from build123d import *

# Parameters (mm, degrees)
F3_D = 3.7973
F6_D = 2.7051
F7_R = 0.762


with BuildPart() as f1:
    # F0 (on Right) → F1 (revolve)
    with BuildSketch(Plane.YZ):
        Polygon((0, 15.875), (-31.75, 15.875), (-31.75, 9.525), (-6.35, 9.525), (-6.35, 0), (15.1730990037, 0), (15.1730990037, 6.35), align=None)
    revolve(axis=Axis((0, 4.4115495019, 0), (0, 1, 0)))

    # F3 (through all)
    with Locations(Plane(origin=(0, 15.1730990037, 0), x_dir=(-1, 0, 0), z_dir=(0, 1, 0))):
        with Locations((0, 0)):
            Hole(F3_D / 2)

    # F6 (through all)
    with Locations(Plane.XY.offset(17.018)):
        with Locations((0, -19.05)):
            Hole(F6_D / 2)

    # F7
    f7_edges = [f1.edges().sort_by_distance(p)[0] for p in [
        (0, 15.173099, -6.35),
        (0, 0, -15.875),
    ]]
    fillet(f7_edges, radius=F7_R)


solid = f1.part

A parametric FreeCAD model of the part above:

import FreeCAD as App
import Part
import Sketcher
from FreeCAD import Vector
Q = App.Units.Quantity


def edges_at(feature, points):
    """Names of the edges that pass closest to the given points."""
    edges = feature.Shape.Edges
    near = lambda p: min(range(len(edges)), key=lambda i: edges[i].distToShape(Part.Vertex(*p))[0])
    return sorted({f"Edge{near(p) + 1}" for p in points})

doc = App.newDocument("Part")
body = doc.addObject("PartDesign::Body", "Body")

sketch1 = doc.addObject("Sketcher::SketchObject", "Sketch")
body.addObject(sketch1)
sketch1.AttachmentSupport = (doc.YZ_Plane, [""])
sketch1.MapMode = "FlatFace"
sketch1.addGeometry([
    Part.LineSegment(Vector(0, 16, 0), Vector(-32, 16, 0)),
    Part.LineSegment(Vector(-32, 16, 0), Vector(-32, 10, 0)),
    Part.LineSegment(Vector(-32, 10, 0), Vector(-6, 10, 0)),
    Part.LineSegment(Vector(-6, 10, 0), Vector(-6, 0, 0)),
    Part.LineSegment(Vector(-6, 0, 0), Vector(15, 0, 0)),
    Part.LineSegment(Vector(15, 0, 0), Vector(15, 6, 0)),
    Part.LineSegment(Vector(15, 6, 0), Vector(0, 16, 0)),
], False)
sketch1.addConstraint([
    Sketcher.Constraint("Coincident", 0, 2, 1, 1),
    Sketcher.Constraint("Coincident", 1, 2, 2, 1),
    Sketcher.Constraint("Coincident", 2, 2, 3, 1),
    Sketcher.Constraint("Coincident", 3, 2, 4, 1),
    Sketcher.Constraint("Coincident", 4, 2, 5, 1),
    Sketcher.Constraint("Coincident", 5, 2, 6, 1),
    Sketcher.Constraint("Coincident", 6, 2, 0, 1),
    Sketcher.Constraint("Horizontal", 0),
    Sketcher.Constraint("Vertical", 1),
    Sketcher.Constraint("Horizontal", 2),
    Sketcher.Constraint("Vertical", 3),
    Sketcher.Constraint("Horizontal", 4),
    Sketcher.Constraint("Vertical", 5),
    Sketcher.Constraint("PointOnObject", 3, 2, -1),
    Sketcher.Constraint("PointOnObject", 6, 2, -2),
    Sketcher.Constraint("Equal", 1, 5),
    Sketcher.Constraint("DistanceX", 2, 1, 2, 2, Q("1 in")),
    Sketcher.Constraint("DistanceX", 0, 2, 0, 1, Q("1.25 in")),
    Sketcher.Constraint("DistanceY", 1, 2, 1, 1, Q("0.25 in")),
    Sketcher.Constraint("DistanceY", 3, 2, 3, 1, Q("0.375 in")),
    Sketcher.Constraint("DistanceX", 4, 1, 4, 2, 21.523099),
])
revolution = doc.addObject("PartDesign::Revolution", "Revolution")
body.addObject(revolution)
revolution.Profile = sketch1
revolution.ReferenceAxis = (sketch1, ["H_Axis"])
revolution.Angle = 360

sketch2 = doc.addObject("Sketcher::SketchObject", "Sketch001")
body.addObject(sketch2)
sketch2.AttachmentSupport = (doc.XZ_Plane, [""])
sketch2.MapMode = "FlatFace"
sketch2.AttachmentOffset = App.Placement(Vector(0, 0, -15.173099), App.Rotation())
sketch2.addGeometry(Part.Circle(Vector(0, 0, 0), Vector(0, 0, 1), 1.9), False)
sketch2.addConstraint([
    Sketcher.Constraint("Coincident", 0, 3, -1, 1),
    Sketcher.Constraint("Diameter", 0, Q("0.1495 in")),
])
doc.recompute()
hole = doc.addObject("PartDesign::Hole", "Hole")
body.addObject(hole)
hole.Profile = sketch2
hole.ThreadType = "None"
hole.Diameter = Q("0.1495 in")
hole.DepthType = "ThroughAll"
hole.Reversed = True

sketch3 = doc.addObject("Sketcher::SketchObject", "Sketch002")
body.addObject(sketch3)
sketch3.AttachmentSupport = (doc.XY_Plane, [""])
sketch3.MapMode = "FlatFace"
sketch3.AttachmentOffset = App.Placement(Vector(0, 0, 0.67 * 25.4), App.Rotation())
sketch3.addGeometry(Part.Circle(Vector(0, -19.1, 0), Vector(0, 0, 1), 1.4), False)
sketch3.addConstraint([
    Sketcher.Constraint("PointOnObject", 0, 3, -2),
    Sketcher.Constraint("Diameter", 0, Q("0.1065 in")),
    Sketcher.Constraint("DistanceY", 0, 3, -1, 1, Q("0.75 in")),
])
doc.recompute()
hole2 = doc.addObject("PartDesign::Hole", "Hole001")
body.addObject(hole2)
hole2.Profile = sketch3
hole2.ThreadType = "None"
hole2.Diameter = Q("0.1065 in")
hole2.DepthType = "ThroughAll"
doc.recompute()

fillet = doc.addObject("PartDesign::Fillet", "Fillet")
body.addObject(fillet)
fillet.Base = (hole2, edges_at(hole2, [(0, 15.173, -6.35), (0, 0, -15.875)]))
fillet.Radius = Q("0.03 in")

doc.recompute()
